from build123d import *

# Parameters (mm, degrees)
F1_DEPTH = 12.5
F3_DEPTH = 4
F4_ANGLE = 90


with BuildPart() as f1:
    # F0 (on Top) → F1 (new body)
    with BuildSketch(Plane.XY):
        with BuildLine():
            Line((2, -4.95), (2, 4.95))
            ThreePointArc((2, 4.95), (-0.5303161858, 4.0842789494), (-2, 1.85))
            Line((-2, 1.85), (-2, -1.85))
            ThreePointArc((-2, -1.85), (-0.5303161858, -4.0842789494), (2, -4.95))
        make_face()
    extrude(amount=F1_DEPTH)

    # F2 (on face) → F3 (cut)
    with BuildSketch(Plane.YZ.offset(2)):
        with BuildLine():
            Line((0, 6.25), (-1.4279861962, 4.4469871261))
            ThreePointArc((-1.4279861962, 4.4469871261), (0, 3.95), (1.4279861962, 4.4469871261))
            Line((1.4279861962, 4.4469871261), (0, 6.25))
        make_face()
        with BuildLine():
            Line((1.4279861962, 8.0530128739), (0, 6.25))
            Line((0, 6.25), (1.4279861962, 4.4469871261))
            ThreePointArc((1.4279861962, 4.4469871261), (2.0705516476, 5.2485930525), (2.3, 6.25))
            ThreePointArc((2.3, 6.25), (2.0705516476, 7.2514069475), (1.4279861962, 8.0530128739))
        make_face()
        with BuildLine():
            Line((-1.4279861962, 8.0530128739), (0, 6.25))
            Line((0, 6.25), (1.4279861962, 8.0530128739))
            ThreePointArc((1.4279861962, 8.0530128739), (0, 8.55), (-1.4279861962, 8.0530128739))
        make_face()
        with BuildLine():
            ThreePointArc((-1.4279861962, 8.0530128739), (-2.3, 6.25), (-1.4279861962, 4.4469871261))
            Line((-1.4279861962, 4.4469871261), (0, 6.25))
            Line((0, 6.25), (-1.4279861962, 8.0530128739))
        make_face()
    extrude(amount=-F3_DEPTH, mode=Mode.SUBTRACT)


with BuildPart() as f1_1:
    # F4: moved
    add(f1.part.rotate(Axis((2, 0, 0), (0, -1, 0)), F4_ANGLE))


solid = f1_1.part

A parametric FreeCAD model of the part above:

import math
import FreeCAD as App
import Part
import Sketcher
from FreeCAD import Vector
Q = App.Units.Quantity

doc = App.newDocument("Part")
body = doc.addObject("PartDesign::Body", "Body")

# Sketch on XY plane
sketch1 = body.newObject("Sketcher::SketchObject", "Sketch")
sketch1.AttachmentSupport = (doc.getObject("XY_Plane"), [""])
sketch1.MapMode = "FlatFace"
sketch1.addGeometry([
    Part.LineSegment(Vector(2, -5, 0), Vector(2, 5, 0)),
    Part.ArcOfCircle(Part.Circle(Vector(2, 0.8, 0), Vector(0, 0, 1), 4.1), math.radians(90), math.radians(166)),
    Part.LineSegment(Vector(-2, 1.9, 0), Vector(-2, -1.9, 0)),
    Part.ArcOfCircle(Part.Circle(Vector(2, -0.8, 0), Vector(0, 0, 1), 4.1), math.radians(-166), math.radians(-90)),
], False)
sketch1.addConstraint([
    Sketcher.Constraint("Coincident", 0, 2, 1, 1),
    Sketcher.Constraint("Coincident", 1, 2, 2, 1),
    Sketcher.Constraint("Coincident", 2, 2, 3, 1),
    Sketcher.Constraint("Coincident", 3, 2, 0, 1),
    Sketcher.Constraint("Vertical", 0),
    Sketcher.Constraint("Vertical", 2),
    Sketcher.Constraint("Equal", 1, 3),
    Sketcher.Constraint("Symmetric", 1, 3, 3, 3, -1),
    Sketcher.Constraint("Vertical", 3, 3, 0, 2),
    Sketcher.Constraint("DistanceY", 0, 1, 0, 2, Q("9.9 mm")),
    Sketcher.Constraint("DistanceY", 2, 2, 2, 1, Q("3.7 mm")),
    Sketcher.Constraint("DistanceX", -1, 1, 1, 3, Q("2 mm")),
    Sketcher.Constraint("DistanceX", 1, 2, -1, 1, Q("2 mm")),
])
pad1 = body.newObject("PartDesign::Pad", "Pad")
pad1.Profile = sketch1
pad1.Length = 12.5

# Sketch on YZ plane
sketch2 = body.newObject("Sketcher::SketchObject", "Sketch001")
sketch2.AttachmentSupport = (doc.getObject("YZ_Plane"), [""])
sketch2.MapMode = "FlatFace"
sketch2.AttachmentOffset = App.Placement(Vector(0, 0, 2), App.Rotation())
sketch2.addGeometry([
    Part.ArcOfCircle(Part.Circle(Vector(0, 6.2, 0), Vector(0, 0, 1), 2.3), math.radians(-128), math.radians(-52)),  # 0
    Part.ArcOfCircle(Part.Circle(Vector(0, 6.2, 0), Vector(0, 0, 1), 2.3), math.radians(-52), math.radians(0)),  # 1
    Part.ArcOfCircle(Part.Circle(Vector(0, 6.2, 0), Vector(0, 0, 1), 2.3), math.radians(0), math.radians(52)),  # 2
    Part.ArcOfCircle(Part.Circle(Vector(0, 6.2, 0), Vector(0, 0, 1), 2.3), math.radians(52), math.radians(128)),  # 3
    Part.ArcOfCircle(Part.Circle(Vector(0, 6.2, 0), Vector(0, 0, 1), 2.3), math.radians(128), math.radians(232)),  # 4
], False)
sketch2.addConstraint([
    Sketcher.Constraint("Tangent", 0, 2, 1, 1),
    Sketcher.Constraint("Tangent", 1, 2, 2, 1),
    Sketcher.Constraint("Tangent", 2, 2, 3, 1),
    Sketcher.Constraint("Tangent", 3, 2, 4, 1),
    Sketcher.Constraint("Tangent", 4, 2, 0, 1),
    Sketcher.Constraint("Coincident", 2, 3, 0, 3),
    Sketcher.Constraint("Symmetric", 2, 2, 3, 2, -2),
    Sketcher.Constraint("Horizontal", 4, 3, 1, 2),
    Sketcher.Constraint("Horizontal", 0, 2, 4, 2),
    Sketcher.Constraint("Vertical", 0, 2, 2, 2),
    Sketcher.Constraint("Radius", 0, Q("2.3 mm")),
    Sketcher.Constraint("DistanceY", -1, 1, 0, 3, Q("6.25 mm")),
    Sketcher.Constraint("DistanceX", -1, 1, 0, 2, Q("1.427986 mm")),
])
pocket1 = body.newObject("PartDesign::Pocket", "Pocket")
pocket1.Profile = sketch2
pocket1.Length = 4
body2 = doc.addObject("PartDesign::Body", "Body001")
doc.recompute()

body.Placement = App.Placement(Vector(2, 0, -2), App.Rotation(Vector(0, -1, 0), 90))
boolean = body2.newObject("PartDesign::Boolean", "Boolean")
boolean.Type = "Fuse"
boolean.addObjects([body])

doc.recompute()
